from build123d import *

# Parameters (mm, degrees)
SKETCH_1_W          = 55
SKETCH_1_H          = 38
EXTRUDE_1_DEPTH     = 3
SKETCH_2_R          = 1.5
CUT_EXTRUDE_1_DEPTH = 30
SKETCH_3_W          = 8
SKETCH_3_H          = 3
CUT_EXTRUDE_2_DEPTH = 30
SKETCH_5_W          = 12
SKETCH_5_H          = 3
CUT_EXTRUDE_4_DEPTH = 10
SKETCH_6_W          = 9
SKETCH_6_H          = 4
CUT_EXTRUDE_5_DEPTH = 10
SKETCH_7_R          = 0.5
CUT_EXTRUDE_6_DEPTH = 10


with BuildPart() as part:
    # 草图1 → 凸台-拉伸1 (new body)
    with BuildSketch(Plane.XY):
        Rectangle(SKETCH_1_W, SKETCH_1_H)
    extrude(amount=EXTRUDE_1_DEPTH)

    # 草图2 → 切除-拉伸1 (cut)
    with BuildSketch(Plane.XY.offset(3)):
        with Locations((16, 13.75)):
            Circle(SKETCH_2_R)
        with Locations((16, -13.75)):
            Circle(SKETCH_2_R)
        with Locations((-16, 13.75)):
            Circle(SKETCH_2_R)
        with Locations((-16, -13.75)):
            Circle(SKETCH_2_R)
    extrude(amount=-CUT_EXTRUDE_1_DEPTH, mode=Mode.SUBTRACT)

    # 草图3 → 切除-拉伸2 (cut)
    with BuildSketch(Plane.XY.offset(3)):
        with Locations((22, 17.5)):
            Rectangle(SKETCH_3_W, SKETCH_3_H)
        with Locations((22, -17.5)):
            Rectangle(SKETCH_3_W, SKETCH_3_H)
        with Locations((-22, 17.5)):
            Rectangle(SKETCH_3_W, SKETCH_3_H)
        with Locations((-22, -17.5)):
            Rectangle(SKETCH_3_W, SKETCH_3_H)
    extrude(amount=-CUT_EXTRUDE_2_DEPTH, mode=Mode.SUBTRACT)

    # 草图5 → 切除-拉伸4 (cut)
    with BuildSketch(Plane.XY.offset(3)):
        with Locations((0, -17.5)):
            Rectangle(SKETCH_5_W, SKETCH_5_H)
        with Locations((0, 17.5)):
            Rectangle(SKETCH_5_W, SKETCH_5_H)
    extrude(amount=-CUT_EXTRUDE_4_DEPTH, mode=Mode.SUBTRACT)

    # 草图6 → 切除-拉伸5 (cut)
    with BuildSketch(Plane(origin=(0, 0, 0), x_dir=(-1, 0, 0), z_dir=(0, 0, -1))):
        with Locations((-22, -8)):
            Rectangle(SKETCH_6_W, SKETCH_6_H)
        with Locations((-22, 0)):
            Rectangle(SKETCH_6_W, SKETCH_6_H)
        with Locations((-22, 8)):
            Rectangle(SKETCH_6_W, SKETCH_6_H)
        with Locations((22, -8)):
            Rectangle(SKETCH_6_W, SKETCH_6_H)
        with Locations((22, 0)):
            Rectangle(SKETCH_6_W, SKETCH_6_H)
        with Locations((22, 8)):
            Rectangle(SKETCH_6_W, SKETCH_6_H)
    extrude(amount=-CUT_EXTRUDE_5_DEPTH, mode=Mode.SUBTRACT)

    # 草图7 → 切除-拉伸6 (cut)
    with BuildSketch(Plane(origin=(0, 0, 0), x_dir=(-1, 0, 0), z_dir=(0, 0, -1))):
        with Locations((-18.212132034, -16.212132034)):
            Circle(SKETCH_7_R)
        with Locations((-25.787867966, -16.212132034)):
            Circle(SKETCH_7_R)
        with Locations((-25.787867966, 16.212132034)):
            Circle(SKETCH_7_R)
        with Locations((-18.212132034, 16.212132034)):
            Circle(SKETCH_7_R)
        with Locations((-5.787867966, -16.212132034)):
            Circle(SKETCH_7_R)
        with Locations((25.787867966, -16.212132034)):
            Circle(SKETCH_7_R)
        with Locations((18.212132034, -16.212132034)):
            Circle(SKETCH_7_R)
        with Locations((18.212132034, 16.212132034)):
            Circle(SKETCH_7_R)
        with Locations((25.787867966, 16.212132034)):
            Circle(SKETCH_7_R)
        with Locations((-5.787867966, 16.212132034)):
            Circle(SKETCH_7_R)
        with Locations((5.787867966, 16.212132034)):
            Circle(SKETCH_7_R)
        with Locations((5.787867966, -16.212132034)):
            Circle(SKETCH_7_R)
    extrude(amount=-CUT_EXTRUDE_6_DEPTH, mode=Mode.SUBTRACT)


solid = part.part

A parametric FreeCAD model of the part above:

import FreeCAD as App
import Part
import Sketcher
from FreeCAD import Vector
Q = App.Units.Quantity

doc = App.newDocument("Part")
body = doc.addObject("PartDesign::Body", "Body")

# Sketch on XY plane
sketch1 = doc.addObject("Sketcher::SketchObject", "Sketch")
body.addObject(sketch1)
sketch1.AttachmentSupport = (doc.XY_Plane, [""])
sketch1.MapMode = "FlatFace"
sketch1.addGeometry(Part.LineSegment(Vector(-28, 19, 0), Vector(-28, -19, 0)), False)
sketch1.addGeometry(Part.LineSegment(Vector(-28, -19, 0), Vector(28, -19, 0)), False)
sketch1.addGeometry(Part.LineSegment(Vector(28, -19, 0), Vector(28, 19, 0)), False)
sketch1.addGeometry(Part.LineSegment(Vector(28, 19, 0), Vector(-28, 19, 0)), False)
sketch1.addConstraint(Sketcher.Constraint("Coincident", 0, 2, 1, 1))
sketch1.addConstraint(Sketcher.Constraint("Coincident", 1, 2, 2, 1))
sketch1.addConstraint(Sketcher.Constraint("Coincident", 2, 2, 3, 1))
sketch1.addConstraint(Sketcher.Constraint("Coincident", 3, 2, 0, 1))
sketch1.addConstraint(Sketcher.Constraint("Vertical", 0))
sketch1.addConstraint(Sketcher.Constraint("Horizontal", 1))
sketch1.addConstraint(Sketcher.Constraint("Vertical", 2))
sketch1.addConstraint(Sketcher.Constraint("Horizontal", 3))
sketch1.addConstraint(Sketcher.Constraint("Symmetric", 0, 2, 2, 2, -1, 1))
sketch1.addConstraint(Sketcher.Constraint("DistanceX", 1, 1, 1, 2, Q("55 mm")))
sketch1.addConstraint(Sketcher.Constraint("DistanceY", 0, 2, 0, 1, Q("38 mm")))
pad1 = doc.addObject("PartDesign::Pad", "Pad")
body.addObject(pad1)
pad1.Profile = sketch1
pad1.Length = 3

# Sketch on XY plane
sketch2 = doc.addObject("Sketcher::SketchObject", "Sketch001")
body.addObject(sketch2)
sketch2.AttachmentSupport = (doc.XY_Plane, [""])
sketch2.MapMode = "FlatFace"
sketch2.AttachmentOffset = App.Placement(Vector(0, 0, 3), App.Rotation())
sketch2.addGeometry(Part.Circle(Vector(16, 13.8, 0), Vector(0, 0, 1), 1.5), False)
sketch2.addGeometry(Part.Circle(Vector(16, -13.8, 0), Vector(0, 0, 1), 1.5), False)
sketch2.addGeometry(Part.Circle(Vector(-16, 13.8, 0), Vector(0, 0, 1), 1.5), False)
sketch2.addGeometry(Part.Circle(Vector(-16, -13.8, 0), Vector(0, 0, 1), 1.5), False)
sketch2.addConstraint(Sketcher.Constraint("Equal", 0, 1))
sketch2.addConstraint(Sketcher.Constraint("Equal", 1, 2))
sketch2.addConstraint(Sketcher.Constraint("Equal", 2, 3))
sketch2.addConstraint(Sketcher.Constraint("Symmetric", 1, 3, 2, 3, -1, 1))
sketch2.addConstraint(Sketcher.Constraint("Symmetric", 0, 3, 3, 3, -1, 1))
sketch2.addConstraint(Sketcher.Constraint("Symmetric", 0, 3, 2, 3, -2))
sketch2.addConstraint(Sketcher.Constraint("Diameter", 0, Q("3 mm")))
sketch2.addConstraint(Sketcher.Constraint("DistanceX", -1, 1, 0, 3, Q("16 mm")))
sketch2.addConstraint(Sketcher.Constraint("DistanceY", 1, 3, 0, 3, Q("27.5 mm")))
pocket1 = doc.addObject("PartDesign::Pocket", "Pocket")
body.addObject(pocket1)
pocket1.Profile = sketch2
pocket1.Length = 30

# Sketch on XY plane
sketch3 = doc.addObject("Sketcher::SketchObject", "Sketch002")
body.addObject(sketch3)
sketch3.AttachmentSupport = (doc.XY_Plane, [""])
sketch3.MapMode = "FlatFace"
sketch3.AttachmentOffset = App.Placement(Vector(0, 0, 3), App.Rotation())
sketch3.addGeometry(Part.LineSegment(Vector(18, 19, 0), Vector(18, 16, 0)), False)
sketch3.addGeometry(Part.LineSegment(Vector(18, 16, 0), Vector(26, 16, 0)), False)
sketch3.addGeometry(Part.LineSegment(Vector(26, 16, 0), Vector(26, 19, 0)), False)
sketch3.addGeometry(Part.LineSegment(Vector(26, 19, 0), Vector(18, 19, 0)), False)
sketch3.addGeometry(Part.LineSegment(Vector(18, -16, 0), Vector(18, -19, 0)), False)
sketch3.addGeometry(Part.LineSegment(Vector(18, -19, 0), Vector(26, -19, 0)), False)
sketch3.addGeometry(Part.LineSegment(Vector(26, -19, 0), Vector(26, -16, 0)), False)
sketch3.addGeometry(Part.LineSegment(Vector(26, -16, 0), Vector(18, -16, 0)), False)
sketch3.addGeometry(Part.LineSegment(Vector(-26, 19, 0), Vector(-26, 16, 0)), False)
sketch3.addGeometry(Part.LineSegment(Vector(-26, 16, 0), Vector(-18, 16, 0)), False)
sketch3.addGeometry(Part.LineSegment(Vector(-18, 16, 0), Vector(-18, 19, 0)), False)
sketch3.addGeometry(Part.LineSegment(Vector(-18, 19, 0), Vector(-26, 19, 0)), False)
sketch3.addGeometry(Part.LineSegment(Vector(-26, -16, 0), Vector(-26, -19, 0)), False)
sketch3.addGeometry(Part.LineSegment(Vector(-26, -19, 0), Vector(-18, -19, 0)), False)
sketch3.addGeometry(Part.LineSegment(Vector(-18, -19, 0), Vector(-18, -16, 0)), False)
sketch3.addGeometry(Part.LineSegment(Vector(-18, -16, 0), Vector(-26, -16, 0)), False)
sketch3.addConstraint(Sketcher.Constraint("Coincident", 0, 2, 1, 1))
sketch3.addConstraint(Sketcher.Constraint("Coincident", 1, 2, 2, 1))
sketch3.addConstraint(Sketcher.Constraint("Coincident", 2, 2, 3, 1))
sketch3.addConstraint(Sketcher.Constraint("Coincident", 3, 2, 0, 1))
sketch3.addConstraint(Sketcher.Constraint("Coincident", 4, 2, 5, 1))
sketch3.addConstraint(Sketcher.Constraint("Coincident", 5, 2, 6, 1))
sketch3.addConstraint(Sketcher.Constraint("Coincident", 6, 2, 7, 1))
sketch3.addConstraint(Sketcher.Constraint("Coincident", 7, 2, 4, 1))
sketch3.addConstraint(Sketcher.Constraint("Coincident", 8, 2, 9, 1))
sketch3.addConstraint(Sketcher.Constraint("Coincident", 9, 2, 10, 1))
sketch3.addConstraint(Sketcher.Constraint("Coincident", 10, 2, 11, 1))
sketch3.addConstraint(Sketcher.Constraint("Coincident", 11, 2, 8, 1))
sketch3.addConstraint(Sketcher.Constraint("Coincident", 12, 2, 13, 1))
sketch3.addConstraint(Sketcher.Constraint("Coincident", 13, 2, 14, 1))
sketch3.addConstraint(Sketcher.Constraint("Coincident", 14, 2, 15, 1))
sketch3.addConstraint(Sketcher.Constraint("Coincident", 15, 2, 12, 1))
sketch3.addConstraint(Sketcher.Constraint("Vertical", 0))
sketch3.addConstraint(Sketcher.Constraint("Horizontal", 1))
sketch3.addConstraint(Sketcher.Constraint("Vertical", 2))
sketch3.addConstraint(Sketcher.Constraint("Horizontal", 3))
sketch3.addConstraint(Sketcher.Constraint("Vertical", 4))
sketch3.addConstraint(Sketcher.Constraint("Horizontal", 5))
sketch3.addConstraint(Sketcher.Constraint("Vertical", 6))
sketch3.addConstraint(Sketcher.Constraint("Horizontal", 7))
sketch3.addConstraint(Sketcher.Constraint("Vertical", 8))
sketch3.addConstraint(Sketcher.Constraint("Horizontal", 9))
sketch3.addConstraint(Sketcher.Constraint("Vertical", 10))
sketch3.addConstraint(Sketcher.Constraint("Horizontal", 11))
sketch3.addConstraint(Sketcher.Constraint("Vertical", 12))
sketch3.addConstraint(Sketcher.Constraint("Horizontal", 13))
sketch3.addConstraint(Sketcher.Constraint("Vertical", 14))
sketch3.addConstraint(Sketcher.Constraint("Horizontal", 15))
sketch3.addConstraint(Sketcher.Constraint("Symmetric", 6, 2, 8, 2, -1, 1))
sketch3.addConstraint(Sketcher.Constraint("Symmetric", 4, 2, 10, 2, -1, 1))
sketch3.addConstraint(Sketcher.Constraint("Symmetric", 2, 2, 12, 2, -1, 1))
sketch3.addConstraint(Sketcher.Constraint("Symmetric", 0, 2, 14, 2, -1, 1))
sketch3.addConstraint(Sketcher.Constraint("Symmetric", 1, 2, 8, 2, -2))
sketch3.addConstraint(Sketcher.Constraint("Symmetric", 3, 2, 10, 2, -2))
sketch3.addConstraint(Sketcher.Constraint("DistanceX", 1, 1, 1, 2, Q("8 mm")))
sketch3.addConstraint(Sketcher.Constraint("DistanceY", 0, 2, 0, 1, Q("3 mm")))
sketch3.addConstraint(Sketcher.Constraint("DistanceX", -1, 1, 0, 2, Q("18 mm")))
sketch3.addConstraint(Sketcher.Constraint("DistanceY", -1, 1, 0, 2, Q("16 mm")))
pocket2 = doc.addObject("PartDesign::Pocket", "Pocket001")
body.addObject(pocket2)
pocket2.Profile = sketch3
pocket2.Length = 30

# Sketch on XY plane
sketch4 = doc.addObject("Sketcher::SketchObject", "Sketch003")
body.addObject(sketch4)
sketch4.AttachmentSupport = (doc.XY_Plane, [""])
sketch4.MapMode = "FlatFace"
sketch4.AttachmentOffset = App.Placement(Vector(0, 0, 3), App.Rotation())
sketch4.addGeometry(Part.LineSegment(Vector(-6, -16, 0), Vector(-6, -19, 0)), False)
sketch4.addGeometry(Part.LineSegment(Vector(-6, -19, 0), Vector(6, -19, 0)), False)
sketch4.addGeometry(Part.LineSegment(Vector(6, -19, 0), Vector(6, -16, 0)), False)
sketch4.addGeometry(Part.LineSegment(Vector(6, -16, 0), Vector(-6, -16, 0)), False)
sketch4.addGeometry(Part.LineSegment(Vector(-6, 19, 0), Vector(-6, 16, 0)), False)
sketch4.addGeometry(Part.LineSegment(Vector(-6, 16, 0), Vector(6, 16, 0)), False)
sketch4.addGeometry(Part.LineSegment(Vector(6, 16, 0), Vector(6, 19, 0)), False)
sketch4.addGeometry(Part.LineSegment(Vector(6, 19, 0), Vector(-6, 19, 0)), False)
sketch4.addConstraint(Sketcher.Constraint("Coincident", 0, 2, 1, 1))
sketch4.addConstraint(Sketcher.Constraint("Coincident", 1, 2, 2, 1))
sketch4.addConstraint(Sketcher.Constraint("Coincident", 2, 2, 3, 1))
sketch4.addConstraint(Sketcher.Constraint("Coincident", 3, 2, 0, 1))
sketch4.addConstraint(Sketcher.Constraint("Coincident", 4, 2, 5, 1))
sketch4.addConstraint(Sketcher.Constraint("Coincident", 5, 2, 6, 1))
sketch4.addConstraint(Sketcher.Constraint("Coincident", 6, 2, 7, 1))
sketch4.addConstraint(Sketcher.Constraint("Coincident", 7, 2, 4, 1))
sketch4.addConstraint(Sketcher.Constraint("Vertical", 0))
sketch4.addConstraint(Sketcher.Constraint("Horizontal", 1))
sketch4.addConstraint(Sketcher.Constraint("Vertical", 2))
sketch4.addConstraint(Sketcher.Constraint("Horizontal", 3))
sketch4.addConstraint(Sketcher.Constraint("Vertical", 4))
sketch4.addConstraint(Sketcher.Constraint("Horizontal", 5))
sketch4.addConstraint(Sketcher.Constraint("Vertical", 6))
sketch4.addConstraint(Sketcher.Constraint("Horizontal", 7))
sketch4.addConstraint(Sketcher.Constraint("Symmetric", 2, 2, 4, 2, -1, 1))
sketch4.addConstraint(Sketcher.Constraint("Symmetric", 0, 2, 6, 2, -1, 1))
sketch4.addConstraint(Sketcher.Constraint("Vertical", 3, 2, 4, 2))
sketch4.addConstraint(Sketcher.Constraint("DistanceX", 1, 1, 1, 2, Q("12 mm")))
sketch4.addConstraint(Sketcher.Constraint("DistanceY", 0, 2, 0, 1, Q("3 mm")))
sketch4.addConstraint(Sketcher.Constraint("DistanceY", 0, 2, -1, 1, Q("19 mm")))
pocket3 = doc.addObject("PartDesign::Pocket", "Pocket002")
body.addObject(pocket3)
pocket3.Profile = sketch4
pocket3.Length = 10

# Sketch on XY plane
sketch5 = doc.addObject("Sketcher::SketchObject", "Sketch004")
body.addObject(sketch5)
sketch5.AttachmentSupport = (doc.XY_Plane, [""])
sketch5.MapMode = "FlatFace"
sketch5.addGeometry(Part.LineSegment(Vector(26.5, -6, 0), Vector(26.5, -10, 0)), False)
sketch5.addGeometry(Part.LineSegment(Vector(26.5, -10, 0), Vector(17.5, -10, 0)), False)
sketch5.addGeometry(Part.LineSegment(Vector(17.5, -10, 0), Vector(17.5, -6, 0)), False)
sketch5.addGeometry(Part.LineSegment(Vector(17.5, -6, 0), Vector(26.5, -6, 0)), False)
sketch5.addGeometry(Part.LineSegment(Vector(26.5, 2, 0), Vector(26.5, -2, 0)), False)
sketch5.addGeometry(Part.LineSegment(Vector(26.5, -2, 0), Vector(17.5, -2, 0)), False)
sketch5.addGeometry(Part.LineSegment(Vector(17.5, -2, 0), Vector(17.5, 2, 0)), False)
sketch5.addGeometry(Part.LineSegment(Vector(17.5, 2, 0), Vector(26.5, 2, 0)), False)
sketch5.addGeometry(Part.LineSegment(Vector(26.5, 10, 0), Vector(26.5, 6, 0)), False)
sketch5.addGeometry(Part.LineSegment(Vector(26.5, 6, 0), Vector(17.5, 6, 0)), False)
sketch5.addGeometry(Part.LineSegment(Vector(17.5, 6, 0), Vector(17.5, 10, 0)), False)
sketch5.addGeometry(Part.LineSegment(Vector(17.5, 10, 0), Vector(26.5, 10, 0)), False)
sketch5.addGeometry(Part.LineSegment(Vector(-17.5, -6, 0), Vector(-17.5, -10, 0)), False)
sketch5.addGeometry(Part.LineSegment(Vector(-17.5, -10, 0), Vector(-26.5, -10, 0)), False)
sketch5.addGeometry(Part.LineSegment(Vector(-26.5, -10, 0), Vector(-26.5, -6, 0)), False)
sketch5.addGeometry(Part.LineSegment(Vector(-26.5, -6, 0), Vector(-17.5, -6, 0)), False)
sketch5.addGeometry(Part.LineSegment(Vector(-17.5, 2, 0), Vector(-17.5, -2, 0)), False)
sketch5.addGeometry(Part.LineSegment(Vector(-17.5, -2, 0), Vector(-26.5, -2, 0)), False)
sketch5.addGeometry(Part.LineSegment(Vector(-26.5, -2, 0), Vector(-26.5, 2, 0)), False)
sketch5.addGeometry(Part.LineSegment(Vector(-26.5, 2, 0), Vector(-17.5, 2, 0)), False)
sketch5.addGeometry(Part.LineSegment(Vector(-17.5, 10, 0), Vector(-17.5, 6, 0)), False)
sketch5.addGeometry(Part.LineSegment(Vector(-17.5, 6, 0), Vector(-26.5, 6, 0)), False)
sketch5.addGeometry(Part.LineSegment(Vector(-26.5, 6, 0), Vector(-26.5, 10, 0)), False)
sketch5.addGeometry(Part.LineSegment(Vector(-26.5, 10, 0), Vector(-17.5, 10, 0)), False)
sketch5.addConstraint(Sketcher.Constraint("Coincident", 0, 2, 1, 1))
sketch5.addConstraint(Sketcher.Constraint("Coincident", 1, 2, 2, 1))
sketch5.addConstraint(Sketcher.Constraint("Coincident", 2, 2, 3, 1))
sketch5.addConstraint(Sketcher.Constraint("Coincident", 3, 2, 0, 1))
sketch5.addConstraint(Sketcher.Constraint("Coincident", 4, 2, 5, 1))
sketch5.addConstraint(Sketcher.Constraint("Coincident", 5, 2, 6, 1))
sketch5.addConstraint(Sketcher.Constraint("Coincident", 6, 2, 7, 1))
sketch5.addConstraint(Sketcher.Constraint("Coincident", 7, 2, 4, 1))
sketch5.addConstraint(Sketcher.Constraint("Coincident", 8, 2, 9, 1))
sketch5.addConstraint(Sketcher.Constraint("Coincident", 9, 2, 10, 1))
sketch5.addConstraint(Sketcher.Constraint("Coincident", 10, 2, 11, 1))
sketch5.addConstraint(Sketcher.Constraint("Coincident", 11, 2, 8, 1))
sketch5.addConstraint(Sketcher.Constraint("Coincident", 12, 2, 13, 1))
sketch5.addConstraint(Sketcher.Constraint("Coincident", 13, 2, 14, 1))
sketch5.addConstraint(Sketcher.Constraint("Coincident", 14, 2, 15, 1))
sketch5.addConstraint(Sketcher.Constraint("Coincident", 15, 2, 12, 1))
sketch5.addConstraint(Sketcher.Constraint("Coincident", 16, 2, 17, 1))
sketch5.addConstraint(Sketcher.Constraint("Coincident", 17, 2, 18, 1))
sketch5.addConstraint(Sketcher.Constraint("Coincident", 18, 2, 19, 1))
sketch5.addConstraint(Sketcher.Constraint("Coincident", 19, 2, 16, 1))
sketch5.addConstraint(Sketcher.Constraint("Coincident", 20, 2, 21, 1))
sketch5.addConstraint(Sketcher.Constraint("Coincident", 21, 2, 22, 1))
sketch5.addConstraint(Sketcher.Constraint("Coincident", 22, 2, 23, 1))
sketch5.addConstraint(Sketcher.Constraint("Coincident", 23, 2, 20, 1))
sketch5.addConstraint(Sketcher.Constraint("Vertical", 0))
sketch5.addConstraint(Sketcher.Constraint("Horizontal", 1))
sketch5.addConstraint(Sketcher.Constraint("Vertical", 2))
sketch5.addConstraint(Sketcher.Constraint("Horizontal", 3))
sketch5.addConstraint(Sketcher.Constraint("Vertical", 4))
sketch5.addConstraint(Sketcher.Constraint("Horizontal", 5))
sketch5.addConstraint(Sketcher.Constraint("Vertical", 6))
sketch5.addConstraint(Sketcher.Constraint("Horizontal", 7))
sketch5.addConstraint(Sketcher.Constraint("Vertical", 8))
sketch5.addConstraint(Sketcher.Constraint("Horizontal", 9))
sketch5.addConstraint(Sketcher.Constraint("Vertical", 10))
sketch5.addConstraint(Sketcher.Constraint("Horizontal", 11))
sketch5.addConstraint(Sketcher.Constraint("Vertical", 12))
sketch5.addConstraint(Sketcher.Constraint("Horizontal", 13))
sketch5.addConstraint(Sketcher.Constraint("Vertical", 14))
sketch5.addConstraint(Sketcher.Constraint("Horizontal", 15))
sketch5.addConstraint(Sketcher.Constraint("Vertical", 16))
sketch5.addConstraint(Sketcher.Constraint("Horizontal", 17))
sketch5.addConstraint(Sketcher.Constraint("Vertical", 18))
sketch5.addConstraint(Sketcher.Constraint("Horizontal", 19))
sketch5.addConstraint(Sketcher.Constraint("Vertical", 20))
sketch5.addConstraint(Sketcher.Constraint("Horizontal", 21))
sketch5.addConstraint(Sketcher.Constraint("Vertical", 22))
sketch5.addConstraint(Sketcher.Constraint("Horizontal", 23))
sketch5.addConstraint(Sketcher.Constraint("Symmetric", 10, 2, 12, 2, -1, 1))
sketch5.addConstraint(Sketcher.Constraint("Symmetric", 8, 2, 14, 2, -1, 1))
sketch5.addConstraint(Sketcher.Constraint("Symmetric", 6, 2, 16, 2, -1, 1))
sketch5.addConstraint(Sketcher.Constraint("Symmetric", 4, 2, 18, 2, -1, 1))
sketch5.addConstraint(Sketcher.Constraint("Symmetric", 2, 2, 20, 2, -1, 1))
sketch5.addConstraint(Sketcher.Constraint("Symmetric", 0, 2, 22, 2, -1, 1))
sketch5.addConstraint(Sketcher.Constraint("Symmetric", 1, 2, 12, 2, -2))
sketch5.addConstraint(Sketcher.Constraint("Symmetric", 3, 2, 14, 2, -2))
sketch5.addConstraint(Sketcher.Constraint("Horizontal", 5, 2, 16, 2))
sketch5.addConstraint(Sketcher.Constraint("Vertical", 3, 2, 4, 2))
sketch5.addConstraint(Sketcher.Constraint("Vertical", 2, 2, 5, 2))
sketch5.addConstraint(Sketcher.Constraint("Equal", 2, 4))
sketch5.addConstraint(Sketcher.Constraint("DistanceX", 1, 2, 1, 1, Q("9 mm")))
sketch5.addConstraint(Sketcher.Constraint("DistanceY", 0, 2, 0, 1, Q("4 mm")))
sketch5.addConstraint(Sketcher.Constraint("DistanceY", 0, 2, -1, 1, Q("10 mm")))
sketch5.addConstraint(Sketcher.Constraint("DistanceX", 12, 2, 1, 2, Q("35 mm")))
pocket4 = doc.addObject("PartDesign::Pocket", "Pocket003")
body.addObject(pocket4)
pocket4.Profile = sketch5
pocket4.Length = 10
pocket4.Reversed = True

# Sketch on XY plane
sketch6 = doc.addObject("Sketcher::SketchObject", "Sketch005")
body.addObject(sketch6)
sketch6.AttachmentSupport = (doc.XY_Plane, [""])
sketch6.MapMode = "FlatFace"
sketch6.addGeometry(Part.Circle(Vector(18.2, -16.2, 0), Vector(0, 0, 1), 0.5), False)
sketch6.addGeometry(Part.Circle(Vector(25.8, -16.2, 0), Vector(0, 0, 1), 0.5), False)
sketch6.addGeometry(Part.Circle(Vector(25.8, 16.2, 0), Vector(0, 0, 1), 0.5), False)
sketch6.addGeometry(Part.Circle(Vector(18.2, 16.2, 0), Vector(0, 0, 1), 0.5), False)
sketch6.addGeometry(Part.Circle(Vector(5.8, -16.2, 0), Vector(0, 0, 1), 0.5), False)
sketch6.addGeometry(Part.Circle(Vector(-25.8, -16.2, 0), Vector(0, 0, 1), 0.5), False)
sketch6.addGeometry(Part.Circle(Vector(-18.2, -16.2, 0), Vector(0, 0, 1), 0.5), False)
sketch6.addGeometry(Part.Circle(Vector(-18.2, 16.2, 0), Vector(0, 0, 1), 0.5), False)
sketch6.addGeometry(Part.Circle(Vector(-25.8, 16.2, 0), Vector(0, 0, 1), 0.5), False)
sketch6.addGeometry(Part.Circle(Vector(5.8, 16.2, 0), Vector(0, 0, 1), 0.5), False)
sketch6.addGeometry(Part.Circle(Vector(-5.8, 16.2, 0), Vector(0, 0, 1), 0.5), False)
sketch6.addGeometry(Part.Circle(Vector(-5.8, -16.2, 0), Vector(0, 0, 1), 0.5), False)
sketch6.addConstraint(Sketcher.Constraint("Equal", 0, 1))
sketch6.addConstraint(Sketcher.Constraint("Equal", 1, 2))
sketch6.addConstraint(Sketcher.Constraint("Equal", 2, 3))
sketch6.addConstraint(Sketcher.Constraint("Equal", 3, 4))
sketch6.addConstraint(Sketcher.Constraint("Equal", 4, 5))
sketch6.addConstraint(Sketcher.Constraint("Equal", 5, 6))
sketch6.addConstraint(Sketcher.Constraint("Equal", 6, 7))
sketch6.addConstraint(Sketcher.Constraint("Equal", 7, 8))
sketch6.addConstraint(Sketcher.Constraint("Equal", 8, 9))
sketch6.addConstraint(Sketcher.Constraint("Equal", 9, 10))
sketch6.addConstraint(Sketcher.Constraint("Equal", 10, 11))
sketch6.addConstraint(Sketcher.Constraint("Symmetric", 2, 3, 5, 3, -1, 1))
sketch6.addConstraint(Sketcher.Constraint("Symmetric", 3, 3, 6, 3, -1, 1))
sketch6.addConstraint(Sketcher.Constraint("Symmetric", 0, 3, 7, 3, -1, 1))
sketch6.addConstraint(Sketcher.Constraint("Symmetric", 1, 3, 8, 3, -1, 1))
sketch6.addConstraint(Sketcher.Constraint("Symmetric", 4, 3, 10, 3, -1, 1))
sketch6.addConstraint(Sketcher.Constraint("Symmetric", 9, 3, 11, 3, -1, 1))
sketch6.addConstraint(Sketcher.Constraint("Symmetric", 1, 3, 5, 3, -2))
sketch6.addConstraint(Sketcher.Constraint("Symmetric", 0, 3, 6, 3, -2))
sketch6.addConstraint(Sketcher.Constraint("Symmetric", 9, 3, 10, 3, -2))
sketch6.addConstraint(Sketcher.Constraint("Horizontal", 0, 3, 1, 3))
sketch6.addConstraint(Sketcher.Constraint("Horizontal", 1, 3, 4, 3))
sketch6.addConstraint(Sketcher.Constraint("Diameter", 0, Q("1 mm")))
sketch6.addConstraint(Sketcher.Constraint("DistanceX", 4, 3, 1, 3, Q("20 mm")))
sketch6.addConstraint(Sketcher.Constraint("DistanceX", 5, 3, 0, 3, Q("44 mm")))
sketch6.addConstraint(Sketcher.Constraint("DistanceX", -1, 1, 0, 3, Q("18.212132 mm")))
sketch6.addConstraint(Sketcher.Constraint("DistanceY", 0, 3, -1, 1, Q("16.212132 mm")))
pocket5 = doc.addObject("PartDesign::Pocket", "Pocket004")
body.addObject(pocket5)
pocket5.Profile = sketch6
pocket5.Length = 10
pocket5.Reversed = True

doc.recompute()
